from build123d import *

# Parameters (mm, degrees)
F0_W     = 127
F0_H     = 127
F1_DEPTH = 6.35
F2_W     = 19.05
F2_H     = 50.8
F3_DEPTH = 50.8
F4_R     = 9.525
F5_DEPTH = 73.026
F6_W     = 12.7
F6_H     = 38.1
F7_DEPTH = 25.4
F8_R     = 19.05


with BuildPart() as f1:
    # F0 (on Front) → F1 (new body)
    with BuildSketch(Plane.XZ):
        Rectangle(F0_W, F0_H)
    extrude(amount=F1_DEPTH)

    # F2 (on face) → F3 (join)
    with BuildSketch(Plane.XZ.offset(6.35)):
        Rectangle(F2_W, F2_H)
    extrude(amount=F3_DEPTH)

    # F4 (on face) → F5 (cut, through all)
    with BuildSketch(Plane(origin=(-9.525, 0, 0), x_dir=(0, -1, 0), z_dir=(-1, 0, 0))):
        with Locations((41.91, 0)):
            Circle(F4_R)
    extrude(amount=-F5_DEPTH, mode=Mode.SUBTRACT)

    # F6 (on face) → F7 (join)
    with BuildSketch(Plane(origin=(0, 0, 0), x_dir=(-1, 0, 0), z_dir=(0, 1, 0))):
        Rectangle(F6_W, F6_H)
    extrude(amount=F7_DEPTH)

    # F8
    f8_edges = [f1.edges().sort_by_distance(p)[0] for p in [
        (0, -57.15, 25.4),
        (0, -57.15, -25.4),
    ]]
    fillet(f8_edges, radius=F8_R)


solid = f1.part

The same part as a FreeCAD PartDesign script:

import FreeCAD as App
import Part
import Sketcher

V = App.Vector
Q = App.Units.Quantity


def edges_at(feature, points):
    """Names of the edges that pass closest to the given points."""
    edges = feature.Shape.Edges
    near = lambda p: min(range(len(edges)), key=lambda i: edges[i].distToShape(Part.Vertex(*p))[0])
    return sorted({f"Edge{near(p) + 1}" for p in points})

doc = App.newDocument("Part")
body = doc.addObject("PartDesign::Body", "Body")

sketch1 = doc.addObject("Sketcher::SketchObject", "Sketch")
body.addObject(sketch1)
sketch1.AttachmentSupport = (doc.XZ_Plane, [""])
sketch1.MapMode = "FlatFace"
sketch1.addGeometry([
    Part.LineSegment(V(-64, 64, 0), V(-64, -64, 0)),
    Part.LineSegment(V(-64, -64, 0), V(64, -64, 0)),
    Part.LineSegment(V(64, -64, 0), V(64, 64, 0)),
    Part.LineSegment(V(64, 64, 0), V(-64, 64, 0)),
], False)
sketch1.addConstraint([
    Sketcher.Constraint("Coincident", 0, 2, 1, 1),
    Sketcher.Constraint("Coincident", 1, 2, 2, 1),
    Sketcher.Constraint("Coincident", 2, 2, 3, 1),
    Sketcher.Constraint("Coincident", 3, 2, 0, 1),
    Sketcher.Constraint("Vertical", 0),
    Sketcher.Constraint("Horizontal", 1),
    Sketcher.Constraint("Vertical", 2),
    Sketcher.Constraint("Horizontal", 3),
    Sketcher.Constraint("Symmetric", 0, 2, 2, 2, -1, 1),
    Sketcher.Constraint("Equal", 3, 0),
    Sketcher.Constraint("DistanceX", 1, 1, 1, 2, Q("5 in")),
])
pad1 = doc.addObject("PartDesign::Pad", "Pad")
body.addObject(pad1)
pad1.Profile = sketch1
pad1.Length = Q("0.25 in")

sketch2 = doc.addObject("Sketcher::SketchObject", "Sketch001")
body.addObject(sketch2)
sketch2.AttachmentSupport = (doc.XZ_Plane, [""])
sketch2.MapMode = "FlatFace"
sketch2.AttachmentOffset = App.Placement(V(0, 0, 0.25 * 25.4), App.Rotation())
sketch2.addGeometry([
    Part.LineSegment(V(-10, 25, 0), V(-10, -25, 0)),
    Part.LineSegment(V(-10, -25, 0), V(10, -25, 0)),
    Part.LineSegment(V(10, -25, 0), V(10, 25, 0)),
    Part.LineSegment(V(10, 25, 0), V(-10, 25, 0)),
], False)
sketch2.addConstraint([
    Sketcher.Constraint("Coincident", 0, 2, 1, 1),
    Sketcher.Constraint("Coincident", 1, 2, 2, 1),
    Sketcher.Constraint("Coincident", 2, 2, 3, 1),
    Sketcher.Constraint("Coincident", 3, 2, 0, 1),
    Sketcher.Constraint("Vertical", 0),
    Sketcher.Constraint("Horizontal", 1),
    Sketcher.Constraint("Vertical", 2),
    Sketcher.Constraint("Horizontal", 3),
    Sketcher.Constraint("Symmetric", 0, 2, 2, 2, -1, 1),
    Sketcher.Constraint("DistanceY", 0, 2, 0, 1, Q("2 in")),
    Sketcher.Constraint("DistanceX", 1, 1, 1, 2, Q("0.75 in")),
])
pad2 = doc.addObject("PartDesign::Pad", "Pad001")
body.addObject(pad2)
pad2.Profile = sketch2
pad2.Length = Q("2 in")

sketch3 = doc.addObject("Sketcher::SketchObject", "Sketch002")
body.addObject(sketch3)
sketch3.AttachmentSupport = (doc.YZ_Plane, [""])
sketch3.MapMode = "FlatFace"
sketch3.AttachmentOffset = App.Placement(V(0, 0, -0.375 * 25.4), App.Rotation())
sketch3.addGeometry(Part.Circle(V(-42, 0, 0), V(0, 0, 1), 10), False)
sketch3.addConstraint([
    Sketcher.Constraint("PointOnObject", 0, 3, -1),
    Sketcher.Constraint("Diameter", 0, Q("0.75 in")),
    Sketcher.Constraint("DistanceX", 0, 3, -1, 1, Q("1.65 in")),
])
pocket1 = doc.addObject("PartDesign::Pocket", "Pocket")
body.addObject(pocket1)
pocket1.Profile = sketch3
pocket1.Type = "ThroughAll"
pocket1.Reversed = True

sketch4 = doc.addObject("Sketcher::SketchObject", "Sketch003")
body.addObject(sketch4)
sketch4.AttachmentSupport = (doc.XZ_Plane, [""])
sketch4.MapMode = "FlatFace"
sketch4.addGeometry([
    Part.LineSegment(V(6, 19, 0), V(6, -19, 0)),
    Part.LineSegment(V(6, -19, 0), V(-6, -19, 0)),
    Part.LineSegment(V(-6, -19, 0), V(-6, 19, 0)),
    Part.LineSegment(V(-6, 19, 0), V(6, 19, 0)),
], False)
sketch4.addConstraint([
    Sketcher.Constraint("Coincident", 0, 2, 1, 1),
    Sketcher.Constraint("Coincident", 1, 2, 2, 1),
    Sketcher.Constraint("Coincident", 2, 2, 3, 1),
    Sketcher.Constraint("Coincident", 3, 2, 0, 1),
    Sketcher.Constraint("Vertical", 0),
    Sketcher.Constraint("Horizontal", 1),
    Sketcher.Constraint("Vertical", 2),
    Sketcher.Constraint("Horizontal", 3),
    Sketcher.Constraint("Symmetric", 0, 2, 2, 2, -1, 1),
    Sketcher.Constraint("DistanceX", 1, 2, 1, 1, Q("0.5 in")),
    Sketcher.Constraint("DistanceY", 0, 2, 0, 1, Q("1.5 in")),
])
pad3 = doc.addObject("PartDesign::Pad", "Pad002")
body.addObject(pad3)
pad3.Profile = sketch4
pad3.Length = Q("1 in")
pad3.Reversed = True
doc.recompute()

fillet = doc.addObject("PartDesign::Fillet", "Fillet")
body.addObject(fillet)
fillet.Base = (pad3, edges_at(pad3, [(0, -57.15, 25.4), (0, -57.15, -25.4)]))
fillet.Radius = Q("0.75 in")

doc.recompute()
